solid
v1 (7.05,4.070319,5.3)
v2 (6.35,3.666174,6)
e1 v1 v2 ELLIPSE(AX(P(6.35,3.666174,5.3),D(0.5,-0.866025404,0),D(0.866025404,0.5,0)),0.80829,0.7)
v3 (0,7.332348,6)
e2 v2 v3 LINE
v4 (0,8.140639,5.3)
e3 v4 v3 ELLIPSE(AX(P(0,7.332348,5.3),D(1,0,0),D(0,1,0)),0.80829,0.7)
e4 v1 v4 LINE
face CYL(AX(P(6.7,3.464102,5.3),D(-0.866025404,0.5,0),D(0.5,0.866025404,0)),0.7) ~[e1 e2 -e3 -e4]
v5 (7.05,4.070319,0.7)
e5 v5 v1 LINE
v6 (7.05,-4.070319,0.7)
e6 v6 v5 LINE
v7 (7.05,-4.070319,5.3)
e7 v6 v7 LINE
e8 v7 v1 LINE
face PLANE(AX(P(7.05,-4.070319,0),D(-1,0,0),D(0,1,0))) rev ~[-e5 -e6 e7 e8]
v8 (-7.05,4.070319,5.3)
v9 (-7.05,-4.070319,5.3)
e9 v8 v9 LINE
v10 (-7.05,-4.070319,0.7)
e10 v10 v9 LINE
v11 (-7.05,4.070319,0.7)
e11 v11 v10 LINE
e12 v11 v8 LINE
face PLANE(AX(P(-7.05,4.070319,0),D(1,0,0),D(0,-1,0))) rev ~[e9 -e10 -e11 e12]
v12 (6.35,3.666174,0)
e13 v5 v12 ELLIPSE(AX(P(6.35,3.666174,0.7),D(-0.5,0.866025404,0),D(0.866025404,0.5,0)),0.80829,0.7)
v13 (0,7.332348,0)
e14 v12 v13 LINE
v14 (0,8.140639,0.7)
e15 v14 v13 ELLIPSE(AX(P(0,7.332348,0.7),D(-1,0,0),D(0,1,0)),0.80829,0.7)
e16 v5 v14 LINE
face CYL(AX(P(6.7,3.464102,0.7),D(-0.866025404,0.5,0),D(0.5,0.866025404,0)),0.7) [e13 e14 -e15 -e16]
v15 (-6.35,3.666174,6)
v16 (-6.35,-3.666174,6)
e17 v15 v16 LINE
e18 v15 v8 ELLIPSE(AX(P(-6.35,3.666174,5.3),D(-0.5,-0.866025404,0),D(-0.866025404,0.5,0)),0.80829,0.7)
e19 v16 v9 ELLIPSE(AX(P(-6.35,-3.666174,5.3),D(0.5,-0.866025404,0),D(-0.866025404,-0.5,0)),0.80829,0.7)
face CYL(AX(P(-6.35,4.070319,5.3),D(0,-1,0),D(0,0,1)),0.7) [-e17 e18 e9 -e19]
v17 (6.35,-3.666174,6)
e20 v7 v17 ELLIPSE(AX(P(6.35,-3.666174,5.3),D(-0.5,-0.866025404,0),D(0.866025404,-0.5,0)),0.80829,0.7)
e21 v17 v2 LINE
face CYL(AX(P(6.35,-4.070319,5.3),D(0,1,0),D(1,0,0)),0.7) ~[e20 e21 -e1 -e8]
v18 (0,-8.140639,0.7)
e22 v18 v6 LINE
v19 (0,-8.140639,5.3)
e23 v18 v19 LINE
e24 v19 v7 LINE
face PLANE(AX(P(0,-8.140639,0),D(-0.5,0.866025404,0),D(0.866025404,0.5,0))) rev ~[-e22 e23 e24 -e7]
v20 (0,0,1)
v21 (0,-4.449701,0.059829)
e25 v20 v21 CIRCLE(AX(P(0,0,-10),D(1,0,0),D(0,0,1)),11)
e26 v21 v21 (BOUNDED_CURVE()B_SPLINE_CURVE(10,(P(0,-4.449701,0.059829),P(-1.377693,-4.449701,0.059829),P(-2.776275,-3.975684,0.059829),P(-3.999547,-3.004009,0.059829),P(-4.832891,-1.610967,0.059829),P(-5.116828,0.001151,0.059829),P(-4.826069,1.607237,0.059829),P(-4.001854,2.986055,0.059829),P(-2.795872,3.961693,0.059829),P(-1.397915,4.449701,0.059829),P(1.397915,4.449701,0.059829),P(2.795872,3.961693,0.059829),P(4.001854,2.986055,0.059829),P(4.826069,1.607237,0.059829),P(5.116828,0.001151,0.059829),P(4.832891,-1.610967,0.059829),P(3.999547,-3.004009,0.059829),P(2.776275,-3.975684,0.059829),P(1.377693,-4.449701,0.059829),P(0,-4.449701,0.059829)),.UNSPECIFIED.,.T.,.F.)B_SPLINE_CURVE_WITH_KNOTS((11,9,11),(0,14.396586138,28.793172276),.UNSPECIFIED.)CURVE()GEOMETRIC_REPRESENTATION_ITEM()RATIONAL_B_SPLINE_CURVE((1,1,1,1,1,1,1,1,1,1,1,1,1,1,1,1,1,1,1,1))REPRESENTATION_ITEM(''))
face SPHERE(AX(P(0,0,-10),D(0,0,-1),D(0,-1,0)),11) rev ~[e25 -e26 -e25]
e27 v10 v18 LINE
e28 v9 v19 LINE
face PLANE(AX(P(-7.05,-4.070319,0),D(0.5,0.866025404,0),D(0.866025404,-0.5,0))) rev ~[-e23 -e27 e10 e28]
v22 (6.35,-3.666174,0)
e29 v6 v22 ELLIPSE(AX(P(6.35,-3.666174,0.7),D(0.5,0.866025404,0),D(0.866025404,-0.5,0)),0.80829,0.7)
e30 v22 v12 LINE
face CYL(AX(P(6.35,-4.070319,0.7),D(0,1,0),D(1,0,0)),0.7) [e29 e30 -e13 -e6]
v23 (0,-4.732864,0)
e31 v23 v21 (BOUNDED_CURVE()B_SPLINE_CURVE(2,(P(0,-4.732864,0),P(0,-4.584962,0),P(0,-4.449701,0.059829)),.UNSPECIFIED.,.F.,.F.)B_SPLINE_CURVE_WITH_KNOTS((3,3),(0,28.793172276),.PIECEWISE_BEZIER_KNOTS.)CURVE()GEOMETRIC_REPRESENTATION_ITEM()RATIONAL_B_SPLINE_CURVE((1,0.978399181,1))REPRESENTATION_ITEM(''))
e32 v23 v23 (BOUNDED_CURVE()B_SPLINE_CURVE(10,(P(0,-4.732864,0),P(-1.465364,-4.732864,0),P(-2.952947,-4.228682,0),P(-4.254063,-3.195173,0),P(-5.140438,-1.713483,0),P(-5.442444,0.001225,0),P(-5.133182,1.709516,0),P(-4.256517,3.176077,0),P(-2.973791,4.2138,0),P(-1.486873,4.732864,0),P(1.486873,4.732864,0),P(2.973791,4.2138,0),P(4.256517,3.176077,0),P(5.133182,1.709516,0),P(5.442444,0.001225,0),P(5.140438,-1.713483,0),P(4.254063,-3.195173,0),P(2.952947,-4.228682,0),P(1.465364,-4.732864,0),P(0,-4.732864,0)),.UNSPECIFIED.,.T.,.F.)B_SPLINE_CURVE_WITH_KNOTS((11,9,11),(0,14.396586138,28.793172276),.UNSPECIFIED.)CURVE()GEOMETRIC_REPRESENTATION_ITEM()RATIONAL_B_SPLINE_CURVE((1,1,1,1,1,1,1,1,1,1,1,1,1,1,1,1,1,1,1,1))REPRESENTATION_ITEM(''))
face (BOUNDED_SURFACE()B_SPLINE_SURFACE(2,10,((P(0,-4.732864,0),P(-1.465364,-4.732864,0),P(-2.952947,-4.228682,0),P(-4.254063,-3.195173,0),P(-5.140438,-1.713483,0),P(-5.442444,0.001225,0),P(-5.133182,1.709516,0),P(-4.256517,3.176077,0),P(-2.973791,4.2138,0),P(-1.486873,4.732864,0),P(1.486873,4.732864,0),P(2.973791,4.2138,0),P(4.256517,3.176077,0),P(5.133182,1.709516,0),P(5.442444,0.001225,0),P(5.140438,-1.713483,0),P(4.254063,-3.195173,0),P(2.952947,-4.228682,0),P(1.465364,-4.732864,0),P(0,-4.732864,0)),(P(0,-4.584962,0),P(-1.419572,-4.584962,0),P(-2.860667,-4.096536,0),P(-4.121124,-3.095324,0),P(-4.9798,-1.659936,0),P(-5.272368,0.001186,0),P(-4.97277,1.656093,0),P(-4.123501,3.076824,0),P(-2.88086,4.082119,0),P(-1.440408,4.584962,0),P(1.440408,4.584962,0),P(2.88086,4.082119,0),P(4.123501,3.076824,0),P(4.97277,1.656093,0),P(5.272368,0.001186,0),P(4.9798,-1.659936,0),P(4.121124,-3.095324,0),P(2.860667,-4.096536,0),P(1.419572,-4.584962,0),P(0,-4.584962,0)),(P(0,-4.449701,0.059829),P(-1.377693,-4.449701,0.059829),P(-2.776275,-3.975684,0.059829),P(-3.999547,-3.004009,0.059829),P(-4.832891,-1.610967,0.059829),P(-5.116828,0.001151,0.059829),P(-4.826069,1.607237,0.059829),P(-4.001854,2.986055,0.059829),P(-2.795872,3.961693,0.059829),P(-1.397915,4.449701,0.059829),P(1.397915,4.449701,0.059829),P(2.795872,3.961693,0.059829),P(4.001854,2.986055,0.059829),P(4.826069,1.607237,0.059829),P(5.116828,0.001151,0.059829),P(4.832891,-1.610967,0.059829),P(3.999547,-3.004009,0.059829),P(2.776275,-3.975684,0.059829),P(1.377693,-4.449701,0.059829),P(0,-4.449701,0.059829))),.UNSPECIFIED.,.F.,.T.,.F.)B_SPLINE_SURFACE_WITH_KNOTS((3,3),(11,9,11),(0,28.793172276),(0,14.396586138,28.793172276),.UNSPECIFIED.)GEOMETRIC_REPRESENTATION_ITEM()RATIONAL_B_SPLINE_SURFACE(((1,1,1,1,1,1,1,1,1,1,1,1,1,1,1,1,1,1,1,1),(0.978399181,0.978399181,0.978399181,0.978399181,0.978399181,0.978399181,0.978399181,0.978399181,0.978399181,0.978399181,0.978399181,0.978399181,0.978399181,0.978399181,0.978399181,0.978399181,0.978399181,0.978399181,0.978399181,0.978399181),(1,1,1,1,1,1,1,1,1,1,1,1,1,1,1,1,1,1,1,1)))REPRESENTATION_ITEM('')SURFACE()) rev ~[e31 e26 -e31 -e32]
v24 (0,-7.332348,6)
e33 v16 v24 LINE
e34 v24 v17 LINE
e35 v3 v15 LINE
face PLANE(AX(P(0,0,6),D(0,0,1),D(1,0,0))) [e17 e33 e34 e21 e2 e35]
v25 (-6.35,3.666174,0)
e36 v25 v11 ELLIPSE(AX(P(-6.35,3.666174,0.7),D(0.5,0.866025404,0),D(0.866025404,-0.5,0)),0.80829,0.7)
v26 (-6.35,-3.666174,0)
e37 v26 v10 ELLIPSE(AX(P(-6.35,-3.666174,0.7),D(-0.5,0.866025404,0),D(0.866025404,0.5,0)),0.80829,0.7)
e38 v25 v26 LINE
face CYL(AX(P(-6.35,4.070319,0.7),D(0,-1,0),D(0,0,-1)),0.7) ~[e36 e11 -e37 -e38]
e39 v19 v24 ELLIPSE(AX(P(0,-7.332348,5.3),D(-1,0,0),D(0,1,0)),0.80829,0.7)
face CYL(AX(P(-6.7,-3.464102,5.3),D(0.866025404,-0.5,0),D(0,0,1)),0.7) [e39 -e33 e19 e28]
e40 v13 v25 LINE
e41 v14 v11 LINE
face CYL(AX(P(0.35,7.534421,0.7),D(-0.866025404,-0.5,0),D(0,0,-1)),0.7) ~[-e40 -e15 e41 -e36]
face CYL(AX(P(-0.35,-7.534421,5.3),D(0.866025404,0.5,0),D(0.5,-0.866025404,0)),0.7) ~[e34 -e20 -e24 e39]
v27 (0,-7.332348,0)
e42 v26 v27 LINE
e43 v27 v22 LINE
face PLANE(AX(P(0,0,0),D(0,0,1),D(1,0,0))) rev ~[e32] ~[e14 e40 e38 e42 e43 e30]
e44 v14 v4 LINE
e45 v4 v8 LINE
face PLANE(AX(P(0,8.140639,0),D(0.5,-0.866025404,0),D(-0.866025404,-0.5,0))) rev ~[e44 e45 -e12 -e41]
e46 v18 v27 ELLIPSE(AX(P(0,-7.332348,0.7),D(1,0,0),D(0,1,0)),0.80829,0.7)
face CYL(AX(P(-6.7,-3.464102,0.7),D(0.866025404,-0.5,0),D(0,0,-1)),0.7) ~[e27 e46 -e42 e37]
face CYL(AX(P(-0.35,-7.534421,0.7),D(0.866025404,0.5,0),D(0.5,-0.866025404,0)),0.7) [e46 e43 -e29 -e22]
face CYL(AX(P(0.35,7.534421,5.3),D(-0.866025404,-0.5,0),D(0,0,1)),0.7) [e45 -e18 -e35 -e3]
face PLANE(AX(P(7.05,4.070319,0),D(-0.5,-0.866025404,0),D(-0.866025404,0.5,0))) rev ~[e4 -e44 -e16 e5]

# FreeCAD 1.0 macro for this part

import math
import FreeCAD as App
import Part
import Sketcher

V = App.Vector
Q = App.Units.Quantity


def edges_at(feature, points):
    """Names of the edges that pass closest to the given points."""
    edges = feature.Shape.Edges
    near = lambda p: min(range(len(edges)), key=lambda i: edges[i].distToShape(Part.Vertex(*p))[0])
    return sorted({f"Edge{near(p) + 1}" for p in points})

doc = App.newDocument("Part")
body = doc.addObject("PartDesign::Body", "Body")

# Sketch on XY plane
sketch1 = doc.addObject("Sketcher::SketchObject", "Sketch")
body.addObject(sketch1)
sketch1.AttachmentSupport = (doc.XY_Plane, [""])
sketch1.MapMode = "FlatFace"
sketch1.addGeometry(Part.LineSegment(V(7, -4, 0), V(7, 4, 0)), False)
sketch1.addGeometry(Part.LineSegment(V(7, 4, 0), V(0, 8, 0)), False)
sketch1.addGeometry(Part.LineSegment(V(0, 8, 0), V(-7, 4, 0)), False)
sketch1.addGeometry(Part.LineSegment(V(-7, 4, 0), V(-7, -4, 0)), False)
sketch1.addGeometry(Part.LineSegment(V(-7, -4, 0), V(0, -8, 0)), False)
sketch1.addGeometry(Part.LineSegment(V(0, -8, 0), V(7, -4, 0)), False)
sketch1.addConstraint(Sketcher.Constraint("Coincident", 0, 2, 1, 1))
sketch1.addConstraint(Sketcher.Constraint("Coincident", 1, 2, 2, 1))
sketch1.addConstraint(Sketcher.Constraint("Coincident", 2, 2, 3, 1))
sketch1.addConstraint(Sketcher.Constraint("Coincident", 3, 2, 4, 1))
sketch1.addConstraint(Sketcher.Constraint("Coincident", 4, 2, 5, 1))
sketch1.addConstraint(Sketcher.Constraint("Coincident", 5, 2, 0, 1))
sketch1.addConstraint(Sketcher.Constraint("Vertical", 0))
sketch1.addConstraint(Sketcher.Constraint("Vertical", 3))
sketch1.addConstraint(Sketcher.Constraint("Symmetric", 0, 2, 3, 2, -1, 1))
sketch1.addConstraint(Sketcher.Constraint("Symmetric", 1, 2, 4, 2, -1, 1))
sketch1.addConstraint(Sketcher.Constraint("PointOnObject", 1, 2, -2))
sketch1.addConstraint(Sketcher.Constraint("Parallel", 2, 5))
sketch1.addConstraint(Sketcher.Constraint("Horizontal", 0, 2, 2, 2))
sketch1.addConstraint(Sketcher.Constraint("Angle", 1, Q("150 deg")))
sketch1.addConstraint(Sketcher.Constraint("DistanceX", 2, 2, 0, 2, Q("14.1 mm")))
sketch1.addConstraint(Sketcher.Constraint("DistanceY", 0, 1, 0, 2, Q("8.140639 mm")))
pad1 = doc.addObject("PartDesign::Pad", "Pad")
body.addObject(pad1)
pad1.Profile = sketch1
pad1.Length = 6

# Sketch on YZ plane
sketch2 = doc.addObject("Sketcher::SketchObject", "Sketch001")
body.addObject(sketch2)
sketch2.AttachmentSupport = (doc.YZ_Plane, [""])
sketch2.MapMode = "FlatFace"
sketch2.addGeometry(Part.ArcOfCircle(Part.Circle(V(0, -10, 0), V(0, 0, 1), 11), math.radians(90), math.radians(270)), False)
sketch2.addGeometry(Part.LineSegment(V(0, -21, 0), V(0, 1, 0)), False)
sketch2.addConstraint(Sketcher.Constraint("Coincident", 0, 1, 1, 2))
sketch2.addConstraint(Sketcher.Constraint("Coincident", 1, 1, 0, 2))
sketch2.addConstraint(Sketcher.Constraint("Vertical", 1))
sketch2.addConstraint(Sketcher.Constraint("PointOnObject", 0, 3, -2))
sketch2.addConstraint(Sketcher.Constraint("PointOnObject", 0, 1, -2))
sketch2.addConstraint(Sketcher.Constraint("Radius", 0, Q("11 mm")))
sketch2.addConstraint(Sketcher.Constraint("DistanceY", 0, 3, -1, 1, Q("10 mm")))
groove = doc.addObject("PartDesign::Groove", "Groove")
body.addObject(groove)
groove.Profile = sketch2
groove.ReferenceAxis = (sketch2, ["V_Axis"])
groove.Angle = 360
doc.recompute()

fillet = doc.addObject("PartDesign::Fillet", "Fillet")
body.addObject(fillet)
fillet.Base = (groove, edges_at(groove, [
    (3.525, -6.105, 6),
    (7.05, 0, 6),
    (3.525, 6.105, 6),
    (-3.525, 6.105, 6),
    (-7.05, 0, 6),
    (-3.525, -6.105, 6),
    (3.525, -6.105, 0),
    (-3.525, -6.105, 0),
    (7.05, 0, 0),
    (-7.05, 0, 0),
    (3.525, 6.105, 0),
    (-3.525, 6.105, 0),
    (0, 4.583, 0),
]))
fillet.Radius = 0.7

doc.recompute()
